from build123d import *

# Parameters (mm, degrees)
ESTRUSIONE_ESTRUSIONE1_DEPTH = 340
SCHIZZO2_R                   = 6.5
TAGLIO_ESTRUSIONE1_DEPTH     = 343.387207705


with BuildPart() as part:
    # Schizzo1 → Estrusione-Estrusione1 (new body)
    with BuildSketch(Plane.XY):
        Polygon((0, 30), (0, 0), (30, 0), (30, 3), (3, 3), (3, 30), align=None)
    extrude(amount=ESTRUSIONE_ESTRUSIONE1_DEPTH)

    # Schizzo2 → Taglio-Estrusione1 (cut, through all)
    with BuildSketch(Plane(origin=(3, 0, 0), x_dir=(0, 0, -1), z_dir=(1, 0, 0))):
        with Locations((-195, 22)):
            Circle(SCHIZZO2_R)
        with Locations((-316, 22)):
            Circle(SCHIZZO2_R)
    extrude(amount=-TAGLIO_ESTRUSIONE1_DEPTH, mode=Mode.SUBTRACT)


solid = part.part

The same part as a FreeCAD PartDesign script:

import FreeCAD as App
import Part
import Sketcher

V = App.Vector


def add_polygon(sketch, points):
    """Adds a closed chain of lines whose ends are joined by coincident constraints."""
    first, n = sketch.GeometryCount, len(points)
    for a, b in zip(points, points[1:] + points[:1]):
        sketch.addGeometry(Part.LineSegment(App.Vector(*a, 0), App.Vector(*b, 0)), False)
    for i in range(n):
        sketch.addConstraint(Sketcher.Constraint("Coincident", first + i, 2, first + (i + 1) % n, 1))

doc = App.newDocument("Part")
body = doc.addObject("PartDesign::Body", "Body")

sketch1 = body.newObject("Sketcher::SketchObject", "Sketch")
sketch1.AttachmentSupport = (doc.getObject("XY_Plane"), [""])
sketch1.MapMode = "FlatFace"
add_polygon(sketch1, [(0, 30), (0, 0), (30, 0), (30, 3), (3, 3), (3, 30)])
sketch1.addConstraint([
    Sketcher.Constraint("Vertical", 0),
    Sketcher.Constraint("Horizontal", 1),
    Sketcher.Constraint("Vertical", 2),
    Sketcher.Constraint("Horizontal", 3),
    Sketcher.Constraint("Vertical", 4),
    Sketcher.Constraint("Horizontal", 5),
    Sketcher.Constraint("Coincident", 0, 2, -1, 1),
    Sketcher.Constraint("Equal", 1, 0),
    Sketcher.Constraint("Equal", 5, 2),
    Sketcher.Constraint("DistanceX", 1, 1, 1, 2, 30.0),
    Sketcher.Constraint("DistanceX", 3, 2, 3, 1, 27.0),
])
pad1 = body.newObject("PartDesign::Pad", "Pad")
pad1.Profile = sketch1
pad1.Length = 340

sketch2 = body.newObject("Sketcher::SketchObject", "Sketch001")
sketch2.AttachmentSupport = (doc.getObject("YZ_Plane"), [""])
sketch2.MapMode = "FlatFace"
sketch2.AttachmentOffset = App.Placement(V(0, 0, 3), App.Rotation())
sketch2.addGeometry([
    Part.Circle(V(22, 195, 0), V(0, 0, 1), 6.5),
    Part.Circle(V(22, 316, 0), V(0, 0, 1), 6.5),
], False)
sketch2.addConstraint([
    Sketcher.Constraint("Equal", 0, 1),
    Sketcher.Constraint("Vertical", 0, 3, 1, 3),
    Sketcher.Constraint("Diameter", 0, 13.0),
    Sketcher.Constraint("DistanceX", -1, 1, 0, 3, 22.0),
    Sketcher.Constraint("DistanceY", -1, 1, 0, 3, 195.0),
    Sketcher.Constraint("DistanceY", -1, 1, 1, 3, 316.0),
])
pocket1 = body.newObject("PartDesign::Pocket", "Pocket")
pocket1.Profile = sketch2
pocket1.Type = "ThroughAll"

doc.recompute()
